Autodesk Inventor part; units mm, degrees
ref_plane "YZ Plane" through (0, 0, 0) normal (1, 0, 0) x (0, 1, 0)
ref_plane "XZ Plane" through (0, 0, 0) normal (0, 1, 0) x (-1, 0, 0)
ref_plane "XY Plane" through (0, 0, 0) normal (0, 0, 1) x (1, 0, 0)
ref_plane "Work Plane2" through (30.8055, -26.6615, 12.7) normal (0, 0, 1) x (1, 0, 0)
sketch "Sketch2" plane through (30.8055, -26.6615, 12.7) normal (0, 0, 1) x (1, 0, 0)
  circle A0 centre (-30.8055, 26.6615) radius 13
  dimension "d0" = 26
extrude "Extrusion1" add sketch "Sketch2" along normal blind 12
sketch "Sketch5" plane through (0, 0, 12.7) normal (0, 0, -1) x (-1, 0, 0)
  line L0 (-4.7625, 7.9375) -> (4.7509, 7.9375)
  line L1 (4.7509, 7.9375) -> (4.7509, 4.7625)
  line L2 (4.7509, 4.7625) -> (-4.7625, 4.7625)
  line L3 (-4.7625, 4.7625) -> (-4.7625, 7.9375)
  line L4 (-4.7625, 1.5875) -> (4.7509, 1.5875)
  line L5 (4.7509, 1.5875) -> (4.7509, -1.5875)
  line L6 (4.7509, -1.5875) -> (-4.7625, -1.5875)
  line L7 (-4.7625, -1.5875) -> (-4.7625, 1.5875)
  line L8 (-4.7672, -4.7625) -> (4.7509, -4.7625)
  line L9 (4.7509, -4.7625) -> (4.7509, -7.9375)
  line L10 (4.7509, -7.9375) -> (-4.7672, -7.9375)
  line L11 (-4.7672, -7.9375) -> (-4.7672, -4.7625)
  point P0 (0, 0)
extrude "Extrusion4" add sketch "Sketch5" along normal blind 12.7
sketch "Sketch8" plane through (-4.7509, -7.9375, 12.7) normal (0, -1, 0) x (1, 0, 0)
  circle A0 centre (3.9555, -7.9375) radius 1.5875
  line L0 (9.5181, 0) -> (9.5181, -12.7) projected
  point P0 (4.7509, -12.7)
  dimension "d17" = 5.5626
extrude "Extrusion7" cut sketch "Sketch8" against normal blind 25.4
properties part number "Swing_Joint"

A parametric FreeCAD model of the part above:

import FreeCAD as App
import Part
import Sketcher
from FreeCAD import Vector
Q = App.Units.Quantity


def add_polygon(sketch, points):
    """Adds a closed chain of lines whose ends are joined by coincident constraints."""
    first, n = sketch.GeometryCount, len(points)
    for a, b in zip(points, points[1:] + points[:1]):
        sketch.addGeometry(Part.LineSegment(App.Vector(*a, 0), App.Vector(*b, 0)), False)
    for i in range(n):
        sketch.addConstraint(Sketcher.Constraint("Coincident", first + i, 2, first + (i + 1) % n, 1))

doc = App.newDocument("Part")
body = doc.addObject("PartDesign::Body", "Body")

# Sketch on XY plane
sketch1 = body.newObject("Sketcher::SketchObject", "Sketch")
sketch1.AttachmentSupport = (doc.getObject("XY_Plane"), [""])
sketch1.MapMode = "FlatFace"
sketch1.AttachmentOffset = App.Placement(Vector(0, 0, 0.5 * 25.4), App.Rotation())
sketch1.addGeometry(Part.Circle(Vector(0, 0, 0), Vector(0, 0, 1), 13), False)
sketch1.addConstraint([
    Sketcher.Constraint("Coincident", 0, 3, -1, 1),
    Sketcher.Constraint("Diameter", 0, Q("26 mm")),
])
pad1 = body.newObject("PartDesign::Pad", "Pad")
pad1.Profile = sketch1
pad1.Length = 12

# Sketch on XY plane
sketch2 = body.newObject("Sketcher::SketchObject", "Sketch001")
sketch2.AttachmentSupport = (doc.getObject("XY_Plane"), [""])
sketch2.MapMode = "FlatFace"
sketch2.AttachmentOffset = App.Placement(Vector(0, 0, 0.5 * 25.4), App.Rotation())
add_polygon(sketch2, [(-4.7509, 7.9375), (4.7625, 7.9375), (4.7625, 4.7625), (-4.7509, 4.7625)])  # lines 0-3
add_polygon(sketch2, [(-4.7509, 1.5875), (4.7625, 1.5875), (4.7625, -1.5875), (-4.7509, -1.5875)])  # lines 4-7
add_polygon(sketch2, [(-4.7509, -4.7625), (4.7672, -4.7625), (4.7672, -7.9375), (-4.7509, -7.9375)])  # lines 8-11
sketch2.addConstraint([
    Sketcher.Constraint("Horizontal", 0),
    Sketcher.Constraint("Vertical", 1),
    Sketcher.Constraint("Horizontal", 2),
    Sketcher.Constraint("Vertical", 3),
    Sketcher.Constraint("Horizontal", 4),
    Sketcher.Constraint("Vertical", 5),
    Sketcher.Constraint("Horizontal", 6),
    Sketcher.Constraint("Vertical", 7),
    Sketcher.Constraint("Horizontal", 8),
    Sketcher.Constraint("Vertical", 9),
    Sketcher.Constraint("Horizontal", 10),
    Sketcher.Constraint("Vertical", 11),
    Sketcher.Constraint("Symmetric", 3, 2, 10, 2, -1),
    Sketcher.Constraint("Vertical", 1, 2, 4, 2),
    Sketcher.Constraint("Vertical", 3, 2, 6, 2),
    Sketcher.Constraint("Equal", 3, 5),
    Sketcher.Constraint("Equal", 7, 9),
    Sketcher.Constraint("DistanceY", 9, 2, 1, 2, Q("0.5 in")),
    Sketcher.Constraint("DistanceY", 1, 2, 1, 1, Q("0.125 in")),
    Sketcher.Constraint("DistanceY", 4, 2, 0, 2, Q("0.25 in")),
    Sketcher.Constraint("DistanceX", -1, 1, 0, 2, Q("0.1875 in")),
    Sketcher.Constraint("DistanceX", 0, 1, 0, 2, Q("9.5134 mm")),
    Sketcher.Constraint("DistanceX", 8, 1, 8, 2, Q("9.518 mm")),
])
pad2 = body.newObject("PartDesign::Pad", "Pad001")
pad2.Profile = sketch2
pad2.Length = Q("0.5 in")
pad2.Reversed = True

# Sketch on XZ plane
sketch3 = body.newObject("Sketcher::SketchObject", "Sketch002")
sketch3.AttachmentSupport = (doc.getObject("XZ_Plane"), [""])
sketch3.MapMode = "FlatFace"
sketch3.AttachmentOffset = App.Placement(Vector(0, 0, 0.3125 * 25.4), App.Rotation())
sketch3.addGeometry(Part.Circle(Vector(-0.7954, 4.7625, 0), Vector(0, 0, 1), 1.5875), False)
sketch3.addConstraint([
    Sketcher.Constraint("Diameter", 0, Q("0.125 in")),
    Sketcher.Constraint("DistanceY", -1, 1, 0, 3, Q("0.1875 in")),
    Sketcher.Constraint("DistanceX", 0, 3, -1, 1, Q("0.7954 mm")),
])
pocket1 = body.newObject("PartDesign::Pocket", "Pocket")
pocket1.Profile = sketch3
pocket1.Length = Q("1 in")

doc.recompute()
